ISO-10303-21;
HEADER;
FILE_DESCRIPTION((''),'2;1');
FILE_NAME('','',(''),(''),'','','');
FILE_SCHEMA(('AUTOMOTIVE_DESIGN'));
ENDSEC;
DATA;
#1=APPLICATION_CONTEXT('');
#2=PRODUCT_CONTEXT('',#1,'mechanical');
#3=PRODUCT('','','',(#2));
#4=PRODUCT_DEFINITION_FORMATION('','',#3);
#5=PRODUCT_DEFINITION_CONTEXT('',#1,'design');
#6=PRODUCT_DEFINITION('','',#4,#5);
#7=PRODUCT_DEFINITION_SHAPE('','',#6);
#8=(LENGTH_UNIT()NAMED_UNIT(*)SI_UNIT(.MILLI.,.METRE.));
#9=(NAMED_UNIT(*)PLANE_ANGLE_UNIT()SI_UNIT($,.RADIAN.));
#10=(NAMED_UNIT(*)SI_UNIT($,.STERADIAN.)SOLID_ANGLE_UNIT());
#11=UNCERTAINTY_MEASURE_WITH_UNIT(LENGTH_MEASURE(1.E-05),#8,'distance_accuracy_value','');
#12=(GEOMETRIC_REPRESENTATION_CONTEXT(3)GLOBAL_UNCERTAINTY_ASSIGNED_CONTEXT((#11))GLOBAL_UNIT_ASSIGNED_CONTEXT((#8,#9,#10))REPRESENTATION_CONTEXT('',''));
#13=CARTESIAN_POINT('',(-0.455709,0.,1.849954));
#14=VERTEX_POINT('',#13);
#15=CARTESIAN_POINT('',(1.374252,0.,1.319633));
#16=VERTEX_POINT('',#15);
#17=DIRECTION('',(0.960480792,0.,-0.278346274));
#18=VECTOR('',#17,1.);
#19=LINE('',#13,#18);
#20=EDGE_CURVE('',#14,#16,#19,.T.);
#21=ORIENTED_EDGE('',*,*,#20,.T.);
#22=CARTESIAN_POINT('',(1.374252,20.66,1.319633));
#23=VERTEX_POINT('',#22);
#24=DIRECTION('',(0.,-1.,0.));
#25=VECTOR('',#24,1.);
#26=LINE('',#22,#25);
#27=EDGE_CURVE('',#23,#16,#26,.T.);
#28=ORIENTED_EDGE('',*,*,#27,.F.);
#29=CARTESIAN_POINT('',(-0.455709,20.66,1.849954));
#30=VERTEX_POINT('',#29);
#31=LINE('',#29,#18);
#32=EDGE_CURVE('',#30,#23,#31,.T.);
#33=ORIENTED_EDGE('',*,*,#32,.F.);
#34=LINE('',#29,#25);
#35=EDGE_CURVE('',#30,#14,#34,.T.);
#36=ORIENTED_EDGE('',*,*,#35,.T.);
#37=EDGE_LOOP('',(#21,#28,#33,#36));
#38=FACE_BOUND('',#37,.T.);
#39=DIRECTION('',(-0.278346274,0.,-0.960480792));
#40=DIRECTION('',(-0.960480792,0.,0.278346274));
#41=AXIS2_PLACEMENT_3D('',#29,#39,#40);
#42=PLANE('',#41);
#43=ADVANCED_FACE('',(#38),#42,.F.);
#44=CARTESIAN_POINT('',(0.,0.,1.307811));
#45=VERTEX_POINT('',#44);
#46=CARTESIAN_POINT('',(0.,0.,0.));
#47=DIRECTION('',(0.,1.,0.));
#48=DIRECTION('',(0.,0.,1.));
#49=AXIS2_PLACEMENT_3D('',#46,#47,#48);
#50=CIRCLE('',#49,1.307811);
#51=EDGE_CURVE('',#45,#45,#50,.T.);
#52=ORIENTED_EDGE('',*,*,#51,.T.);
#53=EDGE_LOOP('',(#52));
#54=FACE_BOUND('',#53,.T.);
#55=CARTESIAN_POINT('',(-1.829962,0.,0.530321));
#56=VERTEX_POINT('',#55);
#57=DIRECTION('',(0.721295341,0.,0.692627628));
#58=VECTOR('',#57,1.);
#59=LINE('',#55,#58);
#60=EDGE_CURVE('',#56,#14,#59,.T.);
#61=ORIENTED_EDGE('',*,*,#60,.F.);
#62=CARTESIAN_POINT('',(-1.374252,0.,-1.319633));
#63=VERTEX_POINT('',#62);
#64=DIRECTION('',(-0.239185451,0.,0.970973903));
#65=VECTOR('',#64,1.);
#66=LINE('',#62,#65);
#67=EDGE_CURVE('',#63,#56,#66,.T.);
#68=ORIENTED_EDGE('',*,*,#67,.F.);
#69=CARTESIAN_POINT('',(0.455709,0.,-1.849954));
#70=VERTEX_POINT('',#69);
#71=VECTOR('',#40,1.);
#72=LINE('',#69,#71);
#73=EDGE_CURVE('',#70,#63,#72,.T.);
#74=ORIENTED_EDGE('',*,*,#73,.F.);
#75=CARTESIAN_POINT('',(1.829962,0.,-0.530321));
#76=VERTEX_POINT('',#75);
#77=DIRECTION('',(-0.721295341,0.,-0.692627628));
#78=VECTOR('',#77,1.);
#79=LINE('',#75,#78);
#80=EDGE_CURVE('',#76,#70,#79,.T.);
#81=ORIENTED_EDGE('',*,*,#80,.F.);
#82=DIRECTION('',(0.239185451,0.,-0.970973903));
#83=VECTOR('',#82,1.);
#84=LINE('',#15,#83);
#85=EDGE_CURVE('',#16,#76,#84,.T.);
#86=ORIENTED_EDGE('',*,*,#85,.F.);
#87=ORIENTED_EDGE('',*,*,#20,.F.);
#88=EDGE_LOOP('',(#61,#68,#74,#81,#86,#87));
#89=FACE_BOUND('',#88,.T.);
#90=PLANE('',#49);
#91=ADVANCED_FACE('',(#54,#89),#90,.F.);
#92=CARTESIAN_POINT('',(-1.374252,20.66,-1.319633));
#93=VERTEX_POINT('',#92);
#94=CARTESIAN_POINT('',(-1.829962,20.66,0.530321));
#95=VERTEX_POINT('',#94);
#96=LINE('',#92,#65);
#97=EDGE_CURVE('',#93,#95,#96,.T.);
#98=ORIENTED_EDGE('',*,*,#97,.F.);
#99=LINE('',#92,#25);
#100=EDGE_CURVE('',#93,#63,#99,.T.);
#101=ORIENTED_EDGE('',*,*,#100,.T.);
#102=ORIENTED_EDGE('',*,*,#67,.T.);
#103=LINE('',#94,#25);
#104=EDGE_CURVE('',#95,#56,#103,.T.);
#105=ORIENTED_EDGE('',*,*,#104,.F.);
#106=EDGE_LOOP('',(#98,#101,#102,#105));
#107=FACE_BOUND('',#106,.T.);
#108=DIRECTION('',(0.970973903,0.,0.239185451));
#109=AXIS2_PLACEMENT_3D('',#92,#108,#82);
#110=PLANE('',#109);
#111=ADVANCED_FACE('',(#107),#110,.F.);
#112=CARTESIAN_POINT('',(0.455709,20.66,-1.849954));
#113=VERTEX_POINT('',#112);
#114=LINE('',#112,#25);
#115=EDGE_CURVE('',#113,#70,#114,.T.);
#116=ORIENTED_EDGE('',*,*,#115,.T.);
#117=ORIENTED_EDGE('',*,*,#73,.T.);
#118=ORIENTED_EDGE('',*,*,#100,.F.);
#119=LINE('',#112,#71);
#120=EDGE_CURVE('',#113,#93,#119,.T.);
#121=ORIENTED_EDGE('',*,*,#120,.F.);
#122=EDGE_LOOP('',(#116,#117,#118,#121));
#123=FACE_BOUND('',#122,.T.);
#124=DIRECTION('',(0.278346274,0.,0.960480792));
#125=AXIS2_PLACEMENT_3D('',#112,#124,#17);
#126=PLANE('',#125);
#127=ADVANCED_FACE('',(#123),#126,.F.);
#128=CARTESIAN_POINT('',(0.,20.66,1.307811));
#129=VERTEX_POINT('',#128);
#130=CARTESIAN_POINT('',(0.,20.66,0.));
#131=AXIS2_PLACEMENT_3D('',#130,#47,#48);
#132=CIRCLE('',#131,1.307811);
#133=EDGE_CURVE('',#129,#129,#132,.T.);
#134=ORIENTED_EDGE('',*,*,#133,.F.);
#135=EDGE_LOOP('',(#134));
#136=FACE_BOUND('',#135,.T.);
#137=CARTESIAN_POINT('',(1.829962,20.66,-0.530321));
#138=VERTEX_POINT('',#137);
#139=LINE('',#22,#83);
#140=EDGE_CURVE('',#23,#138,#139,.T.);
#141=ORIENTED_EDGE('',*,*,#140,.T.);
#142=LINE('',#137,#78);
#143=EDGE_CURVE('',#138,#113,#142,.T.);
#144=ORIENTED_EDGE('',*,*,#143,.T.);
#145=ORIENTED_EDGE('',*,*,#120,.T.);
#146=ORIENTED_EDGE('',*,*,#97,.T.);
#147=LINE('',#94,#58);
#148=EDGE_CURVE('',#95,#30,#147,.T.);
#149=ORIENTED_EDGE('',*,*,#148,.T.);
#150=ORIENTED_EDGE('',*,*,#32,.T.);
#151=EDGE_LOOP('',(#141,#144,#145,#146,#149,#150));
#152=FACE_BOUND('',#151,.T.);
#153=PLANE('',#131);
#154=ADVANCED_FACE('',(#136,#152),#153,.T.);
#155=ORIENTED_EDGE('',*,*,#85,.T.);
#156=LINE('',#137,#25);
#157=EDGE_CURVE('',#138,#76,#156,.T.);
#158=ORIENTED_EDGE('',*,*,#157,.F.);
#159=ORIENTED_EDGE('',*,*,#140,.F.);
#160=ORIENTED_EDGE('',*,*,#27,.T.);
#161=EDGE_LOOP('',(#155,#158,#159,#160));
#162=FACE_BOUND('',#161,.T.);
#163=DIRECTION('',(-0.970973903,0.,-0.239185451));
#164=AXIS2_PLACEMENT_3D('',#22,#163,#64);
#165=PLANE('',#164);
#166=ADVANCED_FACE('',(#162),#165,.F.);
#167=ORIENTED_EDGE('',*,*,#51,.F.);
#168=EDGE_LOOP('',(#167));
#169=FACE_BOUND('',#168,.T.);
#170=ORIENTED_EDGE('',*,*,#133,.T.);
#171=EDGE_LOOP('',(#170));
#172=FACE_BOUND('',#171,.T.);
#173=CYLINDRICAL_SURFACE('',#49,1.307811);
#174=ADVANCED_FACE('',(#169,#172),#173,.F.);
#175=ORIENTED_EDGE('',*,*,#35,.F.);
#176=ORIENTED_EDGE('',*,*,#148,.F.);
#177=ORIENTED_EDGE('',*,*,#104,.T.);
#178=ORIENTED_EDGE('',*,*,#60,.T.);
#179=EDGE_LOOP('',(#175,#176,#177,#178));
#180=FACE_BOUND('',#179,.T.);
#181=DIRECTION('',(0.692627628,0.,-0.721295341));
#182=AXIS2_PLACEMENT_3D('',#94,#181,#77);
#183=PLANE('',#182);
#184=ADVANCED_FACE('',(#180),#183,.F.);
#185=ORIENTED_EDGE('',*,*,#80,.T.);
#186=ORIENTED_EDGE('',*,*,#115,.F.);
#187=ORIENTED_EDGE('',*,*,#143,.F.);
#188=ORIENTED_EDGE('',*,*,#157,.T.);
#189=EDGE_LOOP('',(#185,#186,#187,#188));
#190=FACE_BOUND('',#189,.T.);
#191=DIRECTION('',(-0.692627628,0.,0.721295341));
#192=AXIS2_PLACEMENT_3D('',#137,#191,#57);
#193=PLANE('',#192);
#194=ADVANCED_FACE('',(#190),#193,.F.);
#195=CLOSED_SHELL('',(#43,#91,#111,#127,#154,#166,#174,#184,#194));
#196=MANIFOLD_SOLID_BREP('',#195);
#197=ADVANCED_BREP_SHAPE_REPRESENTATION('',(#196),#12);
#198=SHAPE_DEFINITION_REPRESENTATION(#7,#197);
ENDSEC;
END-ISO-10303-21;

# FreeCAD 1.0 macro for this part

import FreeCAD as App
import Part
import Sketcher
from FreeCAD import Vector

doc = App.newDocument("Part")
body = doc.addObject("PartDesign::Body", "Body")

# Sketch on XZ plane
sketch1 = doc.addObject("Sketcher::SketchObject", "Sketch")
body.addObject(sketch1)
sketch1.AttachmentSupport = (doc.XZ_Plane, [""])
sketch1.MapMode = "FlatFace"
sketch1.addGeometry([
    Part.LineSegment(Vector(1.8, -0.5, 0), Vector(0.5, -1.8, 0)),  # 0
    Part.LineSegment(Vector(0.5, -1.8, 0), Vector(-1.4, -1.3, 0)),  # 1
    Part.LineSegment(Vector(-1.4, -1.3, 0), Vector(-1.8, 0.5, 0)),  # 2
    Part.LineSegment(Vector(-1.8, 0.5, 0), Vector(-0.5, 1.8, 0)),  # 3
    Part.LineSegment(Vector(-0.5, 1.8, 0), Vector(1.4, 1.3, 0)),  # 4
    Part.LineSegment(Vector(1.4, 1.3, 0), Vector(1.8, -0.5, 0)),  # 5
], False)
sketch1.addConstraint([
    Sketcher.Constraint("Coincident", 0, 2, 1, 1),
    Sketcher.Constraint("Coincident", 1, 2, 2, 1),
    Sketcher.Constraint("Coincident", 2, 2, 3, 1),
    Sketcher.Constraint("Coincident", 3, 2, 4, 1),
    Sketcher.Constraint("Coincident", 4, 2, 5, 1),
    Sketcher.Constraint("Coincident", 5, 2, 0, 1),
    Sketcher.Constraint("Symmetric", 0, 2, 3, 2, -1, 1),
    Sketcher.Constraint("Symmetric", 1, 2, 4, 2, -1, 1),
    Sketcher.Constraint("Symmetric", 2, 2, 5, 2, -1, 1),
    Sketcher.Constraint("Equal", 0, 1),
    Sketcher.Constraint("Equal", 1, 2),
    Sketcher.Constraint("DistanceX", -1, 1, 0, 2, 0.455709),
    Sketcher.Constraint("DistanceX", 2, 2, -1, 1, 1.829962),
    Sketcher.Constraint("DistanceY", -1, 1, 2, 2, 0.530321),
    Sketcher.Constraint("DistanceX", 1, 2, 0, 2, 1.829962),
])
pad1 = doc.addObject("PartDesign::Pad", "Pad")
body.addObject(pad1)
pad1.Profile = sketch1
pad1.Length = 20.66
pad1.Reversed = True

# Sketch on XZ plane
sketch2 = doc.addObject("Sketcher::SketchObject", "Sketch001")
body.addObject(sketch2)
sketch2.AttachmentSupport = (doc.XZ_Plane, [""])
sketch2.MapMode = "FlatFace"
sketch2.AttachmentOffset = App.Placement(Vector(0, 0, -20.66), App.Rotation())
sketch2.addGeometry(Part.Circle(Vector(0, 0, 0), Vector(0, 0, 1), 1.3), False)
sketch2.addConstraint([
    Sketcher.Constraint("Coincident", 0, 3, -1, 1),
    Sketcher.Constraint("Diameter", 0, 2.615621),
])
pocket1 = doc.addObject("PartDesign::Pocket", "Pocket")
body.addObject(pocket1)
pocket1.Profile = sketch2
pocket1.Length = 20.66
pocket1.Reversed = True

doc.recompute()
